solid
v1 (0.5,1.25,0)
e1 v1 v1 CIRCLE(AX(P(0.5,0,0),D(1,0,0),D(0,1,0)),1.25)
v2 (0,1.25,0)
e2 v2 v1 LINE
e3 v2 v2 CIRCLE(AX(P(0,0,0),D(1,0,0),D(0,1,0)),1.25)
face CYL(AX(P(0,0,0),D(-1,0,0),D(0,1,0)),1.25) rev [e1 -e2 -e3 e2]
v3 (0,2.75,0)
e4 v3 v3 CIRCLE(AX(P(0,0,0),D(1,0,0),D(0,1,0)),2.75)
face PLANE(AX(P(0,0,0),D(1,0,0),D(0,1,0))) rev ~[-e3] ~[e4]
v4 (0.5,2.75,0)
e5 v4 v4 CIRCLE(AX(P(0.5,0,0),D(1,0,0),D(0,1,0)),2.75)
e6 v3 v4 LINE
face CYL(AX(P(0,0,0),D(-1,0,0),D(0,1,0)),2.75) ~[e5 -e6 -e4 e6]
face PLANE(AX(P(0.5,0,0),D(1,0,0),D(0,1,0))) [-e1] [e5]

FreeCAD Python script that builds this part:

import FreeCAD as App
import Part
import Sketcher

V = App.Vector

doc = App.newDocument("Part")
body = doc.addObject("PartDesign::Body", "Body")

# Sketch on YZ plane
sketch1 = doc.addObject("Sketcher::SketchObject", "Sketch")
body.addObject(sketch1)
sketch1.AttachmentSupport = (doc.YZ_Plane, [""])
sketch1.MapMode = "FlatFace"
sketch1.addGeometry([
    Part.Circle(V(0, 0, 0), V(0, 0, 1), 2.75),
    Part.Circle(V(0, 0, 0), V(0, 0, 1), 1.25),
], False)
sketch1.addConstraint([
    Sketcher.Constraint("Coincident", 0, 3, -1, 1),
    Sketcher.Constraint("Coincident", 1, 3, -1, 1),
    Sketcher.Constraint("Diameter", 0, 5.5),
    Sketcher.Constraint("Diameter", 1, 2.5),
])
pad1 = doc.addObject("PartDesign::Pad", "Pad")
body.addObject(pad1)
pad1.Profile = sketch1
pad1.Length = 0.5

doc.recompute()
